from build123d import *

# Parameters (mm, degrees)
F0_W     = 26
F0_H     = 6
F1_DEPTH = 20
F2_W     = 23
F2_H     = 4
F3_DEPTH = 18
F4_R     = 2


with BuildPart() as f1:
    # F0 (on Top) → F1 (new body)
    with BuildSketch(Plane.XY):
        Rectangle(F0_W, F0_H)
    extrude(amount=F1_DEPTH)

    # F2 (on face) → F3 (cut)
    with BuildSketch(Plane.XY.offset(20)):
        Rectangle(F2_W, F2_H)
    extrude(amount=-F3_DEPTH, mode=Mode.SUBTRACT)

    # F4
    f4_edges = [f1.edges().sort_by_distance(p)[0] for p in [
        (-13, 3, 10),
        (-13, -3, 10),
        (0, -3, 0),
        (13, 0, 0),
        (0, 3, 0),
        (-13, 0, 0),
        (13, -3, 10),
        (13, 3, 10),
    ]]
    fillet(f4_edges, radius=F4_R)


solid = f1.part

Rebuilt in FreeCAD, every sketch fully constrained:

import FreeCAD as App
import Part
import Sketcher

V = App.Vector
Q = App.Units.Quantity


def edges_at(feature, points):
    """Names of the edges that pass closest to the given points."""
    edges = feature.Shape.Edges
    near = lambda p: min(range(len(edges)), key=lambda i: edges[i].distToShape(Part.Vertex(*p))[0])
    return sorted({f"Edge{near(p) + 1}" for p in points})

doc = App.newDocument("Part")
params = doc.addObject("Spreadsheet::Sheet", "Params")
for row, (alias, value) in enumerate([
    ("sketch1_width", "26 mm"),
    ("sketch1_height", "6 mm"),
    ("pad1_length", "20 mm"),
    ("sketch2_width", "23 mm"),
    ("sketch2_height", "4 mm"),
    ("pocket1_length", "18 mm"),
    ("fillet_radius", "2 mm"),
], start=1):
    params.set(f"A{row}", alias)
    params.set(f"B{row}", "=" + value)
    params.setAlias(f"B{row}", alias)

body = doc.addObject("PartDesign::Body", "Body")

# Sketch on XY plane
sketch1 = doc.addObject("Sketcher::SketchObject", "Sketch")
body.addObject(sketch1)
sketch1.AttachmentSupport = (doc.XY_Plane, [""])
sketch1.MapMode = "FlatFace"
sketch1.addGeometry([
    Part.LineSegment(V(-13, 3, 0), V(-13, -3, 0)),
    Part.LineSegment(V(-13, -3, 0), V(13, -3, 0)),
    Part.LineSegment(V(13, -3, 0), V(13, 3, 0)),
    Part.LineSegment(V(13, 3, 0), V(-13, 3, 0)),
], False)
sketch1.addConstraint([
    Sketcher.Constraint("Coincident", 0, 2, 1, 1),
    Sketcher.Constraint("Coincident", 1, 2, 2, 1),
    Sketcher.Constraint("Coincident", 2, 2, 3, 1),
    Sketcher.Constraint("Coincident", 3, 2, 0, 1),
    Sketcher.Constraint("Vertical", 0),
    Sketcher.Constraint("Horizontal", 1),
    Sketcher.Constraint("Vertical", 2),
    Sketcher.Constraint("Horizontal", 3),
    Sketcher.Constraint("Symmetric", 0, 2, 2, 2, -1, 1),
    Sketcher.Constraint("DistanceX", 1, 1, 1, 2, Q("26 mm")),
    Sketcher.Constraint("DistanceY", 0, 2, 0, 1, Q("6 mm")),
])
sketch1.setExpression("Constraints[9]", "Params.sketch1_width")
sketch1.setExpression("Constraints[10]", "Params.sketch1_height")
pad1 = doc.addObject("PartDesign::Pad", "Pad")
body.addObject(pad1)
pad1.Profile = sketch1
pad1.setExpression("Length", "Params.pad1_length")

# Sketch on XY plane
sketch2 = doc.addObject("Sketcher::SketchObject", "Sketch001")
body.addObject(sketch2)
sketch2.AttachmentSupport = (doc.XY_Plane, [""])
sketch2.MapMode = "FlatFace"
sketch2.AttachmentOffset = App.Placement(V(0, 0, 20), App.Rotation())
sketch2.addGeometry([
    Part.LineSegment(V(-11.5, 2, 0), V(-11.5, -2, 0)),
    Part.LineSegment(V(-11.5, -2, 0), V(11.5, -2, 0)),
    Part.LineSegment(V(11.5, -2, 0), V(11.5, 2, 0)),
    Part.LineSegment(V(11.5, 2, 0), V(-11.5, 2, 0)),
], False)
sketch2.addConstraint([
    Sketcher.Constraint("Coincident", 0, 2, 1, 1),
    Sketcher.Constraint("Coincident", 1, 2, 2, 1),
    Sketcher.Constraint("Coincident", 2, 2, 3, 1),
    Sketcher.Constraint("Coincident", 3, 2, 0, 1),
    Sketcher.Constraint("Vertical", 0),
    Sketcher.Constraint("Horizontal", 1),
    Sketcher.Constraint("Vertical", 2),
    Sketcher.Constraint("Horizontal", 3),
    Sketcher.Constraint("Symmetric", 0, 2, 2, 2, -1, 1),
    Sketcher.Constraint("DistanceX", 1, 1, 1, 2, Q("23 mm")),
    Sketcher.Constraint("DistanceY", 0, 2, 0, 1, Q("4 mm")),
])
sketch2.setExpression("Constraints[9]", "Params.sketch2_width")
sketch2.setExpression("Constraints[10]", "Params.sketch2_height")
pocket1 = doc.addObject("PartDesign::Pocket", "Pocket")
body.addObject(pocket1)
pocket1.Profile = sketch2
pocket1.setExpression("Length", "Params.pocket1_length")
doc.recompute()

fillet = doc.addObject("PartDesign::Fillet", "Fillet")
body.addObject(fillet)
fillet.Base = (pocket1, edges_at(pocket1, [
    (-13, 3, 10),
    (-13, -3, 10),
    (0, -3, 0),
    (13, 0, 0),
    (0, 3, 0),
    (-13, 0, 0),
    (13, -3, 10),
    (13, 3, 10),
]))
fillet.setExpression("Radius", "Params.fillet_radius")

doc.recompute()
